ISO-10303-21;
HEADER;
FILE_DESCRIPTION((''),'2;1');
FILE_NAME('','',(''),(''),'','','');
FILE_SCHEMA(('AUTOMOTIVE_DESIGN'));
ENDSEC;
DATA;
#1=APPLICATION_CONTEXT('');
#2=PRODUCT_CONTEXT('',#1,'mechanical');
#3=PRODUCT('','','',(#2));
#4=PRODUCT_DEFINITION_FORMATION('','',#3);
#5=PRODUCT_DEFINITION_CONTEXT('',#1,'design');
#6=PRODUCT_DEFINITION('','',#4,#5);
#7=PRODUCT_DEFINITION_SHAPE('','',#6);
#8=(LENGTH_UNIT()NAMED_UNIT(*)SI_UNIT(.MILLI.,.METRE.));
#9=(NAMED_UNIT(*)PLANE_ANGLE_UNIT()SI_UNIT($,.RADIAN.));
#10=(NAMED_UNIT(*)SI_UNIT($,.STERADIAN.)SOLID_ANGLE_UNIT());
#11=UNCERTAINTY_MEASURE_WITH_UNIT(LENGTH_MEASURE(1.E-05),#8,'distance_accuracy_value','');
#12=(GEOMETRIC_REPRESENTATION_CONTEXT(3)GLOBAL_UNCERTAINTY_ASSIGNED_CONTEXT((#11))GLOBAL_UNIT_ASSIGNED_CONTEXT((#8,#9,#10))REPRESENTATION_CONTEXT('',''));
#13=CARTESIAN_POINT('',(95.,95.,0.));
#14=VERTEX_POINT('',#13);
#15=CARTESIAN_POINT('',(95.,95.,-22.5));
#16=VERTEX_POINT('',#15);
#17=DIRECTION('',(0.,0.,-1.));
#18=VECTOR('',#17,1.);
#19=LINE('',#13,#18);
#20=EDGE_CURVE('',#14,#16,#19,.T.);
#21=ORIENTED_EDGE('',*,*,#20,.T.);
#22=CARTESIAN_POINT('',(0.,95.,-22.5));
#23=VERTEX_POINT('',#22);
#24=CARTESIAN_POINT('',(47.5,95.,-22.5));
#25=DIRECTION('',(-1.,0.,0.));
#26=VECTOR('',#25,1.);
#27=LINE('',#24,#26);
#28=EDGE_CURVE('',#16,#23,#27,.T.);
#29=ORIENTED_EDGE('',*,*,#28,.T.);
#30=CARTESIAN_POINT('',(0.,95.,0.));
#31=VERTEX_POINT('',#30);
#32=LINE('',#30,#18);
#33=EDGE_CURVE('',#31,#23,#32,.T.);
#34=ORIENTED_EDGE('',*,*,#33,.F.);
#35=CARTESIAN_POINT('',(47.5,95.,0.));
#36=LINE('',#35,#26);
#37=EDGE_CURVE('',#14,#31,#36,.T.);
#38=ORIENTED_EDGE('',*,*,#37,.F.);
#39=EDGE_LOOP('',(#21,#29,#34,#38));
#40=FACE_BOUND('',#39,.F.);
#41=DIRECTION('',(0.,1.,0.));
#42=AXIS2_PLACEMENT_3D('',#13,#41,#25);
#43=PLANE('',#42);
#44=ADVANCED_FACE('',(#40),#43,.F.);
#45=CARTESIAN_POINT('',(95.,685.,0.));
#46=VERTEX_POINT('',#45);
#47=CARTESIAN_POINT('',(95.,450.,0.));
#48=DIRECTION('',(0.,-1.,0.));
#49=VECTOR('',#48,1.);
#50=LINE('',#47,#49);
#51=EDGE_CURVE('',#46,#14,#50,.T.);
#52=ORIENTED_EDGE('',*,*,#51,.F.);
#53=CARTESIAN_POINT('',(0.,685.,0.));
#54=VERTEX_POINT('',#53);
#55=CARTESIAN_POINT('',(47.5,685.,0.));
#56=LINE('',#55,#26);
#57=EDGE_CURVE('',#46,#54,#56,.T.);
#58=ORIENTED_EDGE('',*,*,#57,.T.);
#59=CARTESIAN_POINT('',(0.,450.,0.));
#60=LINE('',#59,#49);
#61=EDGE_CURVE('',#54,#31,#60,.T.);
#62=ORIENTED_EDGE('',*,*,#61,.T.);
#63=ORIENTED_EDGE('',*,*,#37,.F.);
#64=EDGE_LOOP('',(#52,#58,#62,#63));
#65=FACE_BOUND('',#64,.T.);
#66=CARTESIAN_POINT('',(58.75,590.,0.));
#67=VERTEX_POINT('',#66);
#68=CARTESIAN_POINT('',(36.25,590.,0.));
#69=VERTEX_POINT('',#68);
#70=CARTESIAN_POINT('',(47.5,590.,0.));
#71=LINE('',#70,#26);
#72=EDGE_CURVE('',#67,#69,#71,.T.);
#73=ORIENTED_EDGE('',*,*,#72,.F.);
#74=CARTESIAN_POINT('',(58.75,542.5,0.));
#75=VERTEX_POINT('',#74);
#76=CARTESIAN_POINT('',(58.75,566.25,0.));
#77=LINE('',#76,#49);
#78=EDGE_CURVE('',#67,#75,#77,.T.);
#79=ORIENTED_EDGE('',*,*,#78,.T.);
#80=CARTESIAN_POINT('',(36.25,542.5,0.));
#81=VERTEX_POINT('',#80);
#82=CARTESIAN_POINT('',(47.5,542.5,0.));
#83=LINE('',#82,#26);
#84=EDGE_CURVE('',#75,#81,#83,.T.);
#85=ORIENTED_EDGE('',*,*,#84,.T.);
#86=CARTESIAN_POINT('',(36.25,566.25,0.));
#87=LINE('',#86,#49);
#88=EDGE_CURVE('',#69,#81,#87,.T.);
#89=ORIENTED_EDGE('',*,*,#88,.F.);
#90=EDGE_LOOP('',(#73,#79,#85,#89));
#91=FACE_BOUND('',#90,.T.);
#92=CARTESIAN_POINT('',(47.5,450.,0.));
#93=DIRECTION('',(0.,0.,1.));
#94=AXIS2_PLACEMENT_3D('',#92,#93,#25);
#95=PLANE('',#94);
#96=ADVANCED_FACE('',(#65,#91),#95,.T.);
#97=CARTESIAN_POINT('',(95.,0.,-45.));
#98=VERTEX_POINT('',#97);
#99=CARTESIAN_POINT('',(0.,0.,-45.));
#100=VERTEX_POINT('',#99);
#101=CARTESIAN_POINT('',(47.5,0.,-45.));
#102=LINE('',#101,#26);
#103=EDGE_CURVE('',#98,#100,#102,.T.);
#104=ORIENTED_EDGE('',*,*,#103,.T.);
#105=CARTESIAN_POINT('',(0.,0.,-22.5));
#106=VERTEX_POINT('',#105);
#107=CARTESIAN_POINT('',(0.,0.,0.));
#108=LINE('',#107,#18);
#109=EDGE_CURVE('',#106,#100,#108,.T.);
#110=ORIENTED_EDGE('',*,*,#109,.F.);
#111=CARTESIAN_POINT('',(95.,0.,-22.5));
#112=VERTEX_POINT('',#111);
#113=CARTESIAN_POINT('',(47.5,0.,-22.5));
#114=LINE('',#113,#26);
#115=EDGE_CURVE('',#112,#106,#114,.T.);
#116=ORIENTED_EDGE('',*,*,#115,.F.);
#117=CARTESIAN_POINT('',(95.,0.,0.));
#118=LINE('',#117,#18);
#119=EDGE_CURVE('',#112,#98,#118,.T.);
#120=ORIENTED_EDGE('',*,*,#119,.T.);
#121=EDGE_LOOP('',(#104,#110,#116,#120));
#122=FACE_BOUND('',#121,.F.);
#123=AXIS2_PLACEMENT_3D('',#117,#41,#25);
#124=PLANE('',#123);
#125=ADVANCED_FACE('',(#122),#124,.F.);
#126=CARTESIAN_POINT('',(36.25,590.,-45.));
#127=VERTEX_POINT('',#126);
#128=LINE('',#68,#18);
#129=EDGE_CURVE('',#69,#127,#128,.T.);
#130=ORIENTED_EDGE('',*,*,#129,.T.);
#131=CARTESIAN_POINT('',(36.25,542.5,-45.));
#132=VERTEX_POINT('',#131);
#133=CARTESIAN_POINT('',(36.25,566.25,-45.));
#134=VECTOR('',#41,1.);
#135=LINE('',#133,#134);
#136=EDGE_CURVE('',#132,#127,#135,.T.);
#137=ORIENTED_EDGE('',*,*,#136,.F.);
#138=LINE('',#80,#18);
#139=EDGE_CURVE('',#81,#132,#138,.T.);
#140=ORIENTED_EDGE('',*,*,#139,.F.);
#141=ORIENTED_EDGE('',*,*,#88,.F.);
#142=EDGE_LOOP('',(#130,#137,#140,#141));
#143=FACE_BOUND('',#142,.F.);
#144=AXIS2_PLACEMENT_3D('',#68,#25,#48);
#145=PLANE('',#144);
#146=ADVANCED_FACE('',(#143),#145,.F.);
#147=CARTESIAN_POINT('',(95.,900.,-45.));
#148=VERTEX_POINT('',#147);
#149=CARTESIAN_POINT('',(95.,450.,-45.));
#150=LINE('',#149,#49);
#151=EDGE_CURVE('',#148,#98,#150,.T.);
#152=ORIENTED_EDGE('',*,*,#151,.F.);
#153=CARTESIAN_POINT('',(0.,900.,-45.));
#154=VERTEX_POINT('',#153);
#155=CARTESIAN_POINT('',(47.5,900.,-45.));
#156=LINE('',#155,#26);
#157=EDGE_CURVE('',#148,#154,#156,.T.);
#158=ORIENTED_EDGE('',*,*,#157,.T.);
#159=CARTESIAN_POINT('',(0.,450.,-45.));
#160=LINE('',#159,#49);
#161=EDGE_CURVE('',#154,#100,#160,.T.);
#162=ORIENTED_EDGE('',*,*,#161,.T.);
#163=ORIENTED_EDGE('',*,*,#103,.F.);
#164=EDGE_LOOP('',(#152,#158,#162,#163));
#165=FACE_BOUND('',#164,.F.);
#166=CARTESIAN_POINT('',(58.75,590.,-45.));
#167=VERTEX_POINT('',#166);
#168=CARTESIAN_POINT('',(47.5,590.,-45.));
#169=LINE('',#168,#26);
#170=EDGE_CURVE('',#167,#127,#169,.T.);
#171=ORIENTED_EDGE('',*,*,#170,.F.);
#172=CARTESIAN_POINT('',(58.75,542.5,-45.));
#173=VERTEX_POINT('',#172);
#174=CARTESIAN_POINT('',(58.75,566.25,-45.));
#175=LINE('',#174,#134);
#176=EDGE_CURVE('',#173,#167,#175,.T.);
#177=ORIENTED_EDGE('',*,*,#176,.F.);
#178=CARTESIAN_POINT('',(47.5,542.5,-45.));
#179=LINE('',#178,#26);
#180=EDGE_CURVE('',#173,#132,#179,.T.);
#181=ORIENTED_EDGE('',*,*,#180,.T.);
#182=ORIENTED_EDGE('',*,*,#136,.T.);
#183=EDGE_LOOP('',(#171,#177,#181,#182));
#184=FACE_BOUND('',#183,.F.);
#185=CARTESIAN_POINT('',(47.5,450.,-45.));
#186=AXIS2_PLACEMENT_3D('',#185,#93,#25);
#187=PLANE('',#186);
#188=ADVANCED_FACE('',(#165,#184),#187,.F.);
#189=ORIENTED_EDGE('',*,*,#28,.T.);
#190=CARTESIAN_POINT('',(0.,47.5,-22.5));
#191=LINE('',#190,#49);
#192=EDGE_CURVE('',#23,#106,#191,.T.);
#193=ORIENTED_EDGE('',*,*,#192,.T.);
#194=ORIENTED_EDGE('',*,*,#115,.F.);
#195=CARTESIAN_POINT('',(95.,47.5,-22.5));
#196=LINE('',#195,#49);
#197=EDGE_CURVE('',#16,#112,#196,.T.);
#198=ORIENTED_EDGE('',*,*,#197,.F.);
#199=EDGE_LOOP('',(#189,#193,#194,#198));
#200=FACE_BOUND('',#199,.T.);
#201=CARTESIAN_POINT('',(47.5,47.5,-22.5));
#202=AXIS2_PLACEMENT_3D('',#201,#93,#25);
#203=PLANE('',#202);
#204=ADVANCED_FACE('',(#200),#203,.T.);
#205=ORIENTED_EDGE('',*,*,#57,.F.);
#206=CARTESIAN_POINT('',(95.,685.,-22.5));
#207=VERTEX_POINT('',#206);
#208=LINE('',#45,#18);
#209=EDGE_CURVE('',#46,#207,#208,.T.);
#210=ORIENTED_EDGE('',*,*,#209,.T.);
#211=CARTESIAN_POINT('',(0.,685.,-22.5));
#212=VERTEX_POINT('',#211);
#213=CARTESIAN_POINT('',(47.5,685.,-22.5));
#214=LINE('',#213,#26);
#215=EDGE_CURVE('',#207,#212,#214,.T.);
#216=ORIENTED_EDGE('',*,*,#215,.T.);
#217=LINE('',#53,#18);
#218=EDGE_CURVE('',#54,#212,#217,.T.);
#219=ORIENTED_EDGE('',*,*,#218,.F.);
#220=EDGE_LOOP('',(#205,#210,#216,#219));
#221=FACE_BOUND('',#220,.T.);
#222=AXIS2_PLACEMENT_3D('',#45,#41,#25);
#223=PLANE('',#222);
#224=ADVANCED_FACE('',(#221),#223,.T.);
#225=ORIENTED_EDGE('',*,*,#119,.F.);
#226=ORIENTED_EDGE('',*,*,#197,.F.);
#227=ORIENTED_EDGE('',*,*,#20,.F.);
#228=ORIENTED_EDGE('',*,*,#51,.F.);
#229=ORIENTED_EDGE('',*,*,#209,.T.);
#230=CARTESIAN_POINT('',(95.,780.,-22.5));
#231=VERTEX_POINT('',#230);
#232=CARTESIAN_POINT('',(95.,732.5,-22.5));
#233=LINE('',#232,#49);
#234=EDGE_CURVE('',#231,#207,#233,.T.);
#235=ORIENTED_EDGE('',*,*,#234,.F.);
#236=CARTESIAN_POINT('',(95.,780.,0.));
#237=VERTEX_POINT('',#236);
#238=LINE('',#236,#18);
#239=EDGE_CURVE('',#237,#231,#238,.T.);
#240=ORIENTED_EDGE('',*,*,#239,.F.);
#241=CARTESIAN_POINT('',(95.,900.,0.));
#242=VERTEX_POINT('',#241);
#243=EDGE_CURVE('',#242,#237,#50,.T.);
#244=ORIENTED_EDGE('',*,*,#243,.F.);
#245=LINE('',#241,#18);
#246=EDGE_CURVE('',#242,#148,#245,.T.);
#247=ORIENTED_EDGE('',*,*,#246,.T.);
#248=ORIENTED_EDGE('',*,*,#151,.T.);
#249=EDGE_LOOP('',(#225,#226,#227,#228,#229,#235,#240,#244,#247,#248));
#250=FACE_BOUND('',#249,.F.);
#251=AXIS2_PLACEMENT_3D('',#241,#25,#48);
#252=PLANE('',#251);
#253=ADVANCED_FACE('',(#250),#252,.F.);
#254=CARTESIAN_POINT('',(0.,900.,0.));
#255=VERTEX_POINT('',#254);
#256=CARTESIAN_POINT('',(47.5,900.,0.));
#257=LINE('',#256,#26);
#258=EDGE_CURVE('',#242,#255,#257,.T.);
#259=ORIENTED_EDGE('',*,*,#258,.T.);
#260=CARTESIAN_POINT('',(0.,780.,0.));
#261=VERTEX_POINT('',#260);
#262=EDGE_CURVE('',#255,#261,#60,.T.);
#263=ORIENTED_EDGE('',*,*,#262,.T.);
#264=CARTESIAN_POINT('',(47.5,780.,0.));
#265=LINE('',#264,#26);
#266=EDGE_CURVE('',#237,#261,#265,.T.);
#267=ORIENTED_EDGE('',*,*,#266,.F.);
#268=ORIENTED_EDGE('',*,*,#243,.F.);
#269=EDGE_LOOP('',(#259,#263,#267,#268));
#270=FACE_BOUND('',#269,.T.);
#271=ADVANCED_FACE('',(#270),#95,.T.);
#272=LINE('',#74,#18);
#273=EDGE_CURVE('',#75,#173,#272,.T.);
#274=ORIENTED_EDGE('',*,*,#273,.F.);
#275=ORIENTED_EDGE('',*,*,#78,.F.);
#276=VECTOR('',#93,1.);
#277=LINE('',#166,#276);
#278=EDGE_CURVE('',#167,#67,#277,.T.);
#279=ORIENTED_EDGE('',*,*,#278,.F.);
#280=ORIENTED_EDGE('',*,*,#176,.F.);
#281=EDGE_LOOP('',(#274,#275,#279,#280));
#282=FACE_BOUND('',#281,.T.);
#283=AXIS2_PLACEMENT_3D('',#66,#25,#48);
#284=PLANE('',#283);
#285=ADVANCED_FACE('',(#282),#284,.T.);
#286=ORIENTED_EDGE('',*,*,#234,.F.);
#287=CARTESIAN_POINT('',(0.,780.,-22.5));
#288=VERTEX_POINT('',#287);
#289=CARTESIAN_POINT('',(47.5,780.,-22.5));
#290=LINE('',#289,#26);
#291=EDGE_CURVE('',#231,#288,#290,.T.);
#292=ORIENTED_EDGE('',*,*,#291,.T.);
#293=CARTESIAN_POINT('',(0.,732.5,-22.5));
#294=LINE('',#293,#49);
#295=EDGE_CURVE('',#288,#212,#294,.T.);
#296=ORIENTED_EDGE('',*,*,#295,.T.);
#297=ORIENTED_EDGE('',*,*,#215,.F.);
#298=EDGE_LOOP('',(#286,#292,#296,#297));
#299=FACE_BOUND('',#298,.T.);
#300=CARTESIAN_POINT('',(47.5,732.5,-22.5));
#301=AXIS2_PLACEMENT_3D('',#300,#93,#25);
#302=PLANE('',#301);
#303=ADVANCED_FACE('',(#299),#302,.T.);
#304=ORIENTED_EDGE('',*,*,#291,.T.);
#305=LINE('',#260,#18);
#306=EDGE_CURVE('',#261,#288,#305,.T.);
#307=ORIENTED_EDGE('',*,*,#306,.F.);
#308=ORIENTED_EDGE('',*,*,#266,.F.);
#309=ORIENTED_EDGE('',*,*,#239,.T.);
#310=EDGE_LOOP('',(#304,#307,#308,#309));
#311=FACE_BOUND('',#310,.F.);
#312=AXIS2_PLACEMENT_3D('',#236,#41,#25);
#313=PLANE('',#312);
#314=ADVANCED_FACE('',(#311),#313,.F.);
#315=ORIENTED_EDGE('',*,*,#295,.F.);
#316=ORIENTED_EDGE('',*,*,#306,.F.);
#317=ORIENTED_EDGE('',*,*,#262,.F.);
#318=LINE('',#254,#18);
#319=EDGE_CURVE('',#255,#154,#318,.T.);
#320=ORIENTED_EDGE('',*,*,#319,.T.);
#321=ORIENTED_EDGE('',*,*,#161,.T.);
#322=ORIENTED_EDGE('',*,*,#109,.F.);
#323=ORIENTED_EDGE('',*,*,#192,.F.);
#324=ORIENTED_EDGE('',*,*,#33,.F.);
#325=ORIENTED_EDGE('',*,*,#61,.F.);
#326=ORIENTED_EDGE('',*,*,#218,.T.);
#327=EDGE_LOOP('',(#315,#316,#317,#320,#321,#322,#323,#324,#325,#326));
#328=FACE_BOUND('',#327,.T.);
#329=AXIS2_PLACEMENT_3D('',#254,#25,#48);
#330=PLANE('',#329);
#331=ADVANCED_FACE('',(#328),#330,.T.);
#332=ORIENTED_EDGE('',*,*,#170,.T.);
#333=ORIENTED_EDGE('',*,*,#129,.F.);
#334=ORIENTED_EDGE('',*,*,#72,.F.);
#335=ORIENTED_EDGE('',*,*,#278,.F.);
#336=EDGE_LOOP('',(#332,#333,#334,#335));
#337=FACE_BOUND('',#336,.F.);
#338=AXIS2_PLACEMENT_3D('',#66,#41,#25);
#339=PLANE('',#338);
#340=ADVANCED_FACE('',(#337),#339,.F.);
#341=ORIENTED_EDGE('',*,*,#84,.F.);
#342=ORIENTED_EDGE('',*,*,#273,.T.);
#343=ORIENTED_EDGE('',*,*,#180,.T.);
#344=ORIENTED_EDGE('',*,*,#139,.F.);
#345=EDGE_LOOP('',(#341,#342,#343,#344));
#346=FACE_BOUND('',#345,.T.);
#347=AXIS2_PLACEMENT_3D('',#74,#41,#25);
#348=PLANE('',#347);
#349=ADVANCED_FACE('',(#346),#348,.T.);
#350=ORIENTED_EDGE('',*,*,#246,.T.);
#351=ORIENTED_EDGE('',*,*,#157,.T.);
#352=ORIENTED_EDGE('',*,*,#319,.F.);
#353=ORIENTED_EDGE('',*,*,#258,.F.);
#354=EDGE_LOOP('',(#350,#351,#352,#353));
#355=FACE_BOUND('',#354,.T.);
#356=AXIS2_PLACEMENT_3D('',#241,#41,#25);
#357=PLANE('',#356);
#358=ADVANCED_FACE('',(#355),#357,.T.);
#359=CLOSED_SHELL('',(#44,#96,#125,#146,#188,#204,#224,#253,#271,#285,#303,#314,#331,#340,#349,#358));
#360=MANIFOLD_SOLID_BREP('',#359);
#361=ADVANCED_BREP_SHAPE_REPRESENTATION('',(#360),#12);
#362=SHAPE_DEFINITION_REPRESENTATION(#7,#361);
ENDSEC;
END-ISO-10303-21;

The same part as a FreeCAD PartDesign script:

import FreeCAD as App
import Part
import Sketcher


def add_polygon(sketch, points):
    """Adds a closed chain of lines whose ends are joined by coincident constraints."""
    first, n = sketch.GeometryCount, len(points)
    for a, b in zip(points, points[1:] + points[:1]):
        sketch.addGeometry(Part.LineSegment(App.Vector(*a, 0), App.Vector(*b, 0)), False)
    for i in range(n):
        sketch.addConstraint(Sketcher.Constraint("Coincident", first + i, 2, first + (i + 1) % n, 1))

doc = App.newDocument("Part")
body = doc.addObject("PartDesign::Body", "Body")

sketch1 = doc.addObject("Sketcher::SketchObject", "Sketch")
body.addObject(sketch1)
sketch1.AttachmentSupport = (doc.XY_Plane, [""])
sketch1.MapMode = "FlatFace"
add_polygon(sketch1, [(0, 900), (0, 0), (95, 0), (95, 900)])
sketch1.addConstraint([
    Sketcher.Constraint("Vertical", 0),
    Sketcher.Constraint("Horizontal", 1),
    Sketcher.Constraint("Vertical", 2),
    Sketcher.Constraint("Horizontal", 3),
    Sketcher.Constraint("Coincident", 0, 2, -1, 1),
    Sketcher.Constraint("DistanceX", 1, 1, 1, 2, 95.0),
    Sketcher.Constraint("DistanceY", 0, 2, 0, 1, 900.0),
])
pad1 = doc.addObject("PartDesign::Pad", "Pad")
body.addObject(pad1)
pad1.Profile = sketch1
pad1.Length = 45
pad1.Reversed = True

sketch2 = doc.addObject("Sketcher::SketchObject", "Sketch001")
body.addObject(sketch2)
sketch2.AttachmentSupport = (doc.XY_Plane, [""])
sketch2.MapMode = "FlatFace"
add_polygon(sketch2, [(0, 215), (0, 120), (95, 120), (95, 215)])
add_polygon(sketch2, [(0, 900), (0, 805), (95, 805), (95, 900)])
add_polygon(sketch2, [(36, 358), (36, 310), (59, 310), (59, 358)])
sketch2.addConstraint([
    Sketcher.Constraint("Vertical", 0),
    Sketcher.Constraint("Horizontal", 1),
    Sketcher.Constraint("Vertical", 2),
    Sketcher.Constraint("Horizontal", 3),
    Sketcher.Constraint("Vertical", 4),
    Sketcher.Constraint("Horizontal", 5),
    Sketcher.Constraint("Vertical", 6),
    Sketcher.Constraint("Horizontal", 7),
    Sketcher.Constraint("Vertical", 8),
    Sketcher.Constraint("Horizontal", 9),
    Sketcher.Constraint("Vertical", 10),
    Sketcher.Constraint("Horizontal", 11),
    Sketcher.Constraint("PointOnObject", 0, 2, -2),
    Sketcher.Constraint("PointOnObject", 4, 2, -2),
    Sketcher.Constraint("Vertical", 2, 2, 5, 2),
    Sketcher.Constraint("Equal", 7, 0),
    Sketcher.Constraint("Equal", 2, 4),
    Sketcher.Constraint("DistanceX", 1, 1, 1, 2, 95.0),
    Sketcher.Constraint("DistanceX", 9, 1, 9, 2, 22.5),
    Sketcher.Constraint("DistanceY", 8, 2, 8, 1, 47.5),
    Sketcher.Constraint("DistanceY", -1, 1, 0, 2, 120.0),
    Sketcher.Constraint("DistanceY", -1, 1, 4, 2, 805.0),
    Sketcher.Constraint("DistanceY", -1, 1, 8, 2, 310.0),
    Sketcher.Constraint("DistanceX", -1, 1, 8, 2, 36.25),
])
pocket1 = doc.addObject("PartDesign::Pocket", "Pocket")
body.addObject(pocket1)
pocket1.Profile = sketch2
pocket1.Length = 22.5

sketch3 = doc.addObject("Sketcher::SketchObject", "Sketch002")
body.addObject(sketch3)
sketch3.AttachmentSupport = (doc.XY_Plane, [""])
sketch3.MapMode = "FlatFace"
sketch3.AttachmentOffset = App.Placement(App.Vector(0, 0, -45), App.Rotation())
add_polygon(sketch3, [(36, 310), (36, 358), (59, 358), (59, 310)])
sketch3.addConstraint([
    Sketcher.Constraint("Vertical", 0),
    Sketcher.Constraint("Horizontal", 1),
    Sketcher.Constraint("Vertical", 2),
    Sketcher.Constraint("Horizontal", 3),
    Sketcher.Constraint("DistanceX", 1, 1, 1, 2, 22.5),
    Sketcher.Constraint("DistanceY", 0, 1, 0, 2, 47.5),
    Sketcher.Constraint("DistanceY", -1, 1, 2, 2, 310.0),
    Sketcher.Constraint("DistanceX", -1, 1, 0, 2, 36.25),
])
pocket2 = doc.addObject("PartDesign::Pocket", "Pocket001")
body.addObject(pocket2)
pocket2.Profile = sketch3
pocket2.Length = 22.5
pocket2.Reversed = True
body2 = doc.addObject("PartDesign::Body", "Body001")
doc.recompute()

body.Placement = App.Placement(App.Vector(95, 900, 0), App.Rotation(App.Vector(0, 0, 1), 180))
boolean = doc.addObject("PartDesign::Boolean", "Boolean")
body2.addObject(boolean)
boolean.Type = "Fuse"
boolean.addObjects([body])

doc.recompute()
